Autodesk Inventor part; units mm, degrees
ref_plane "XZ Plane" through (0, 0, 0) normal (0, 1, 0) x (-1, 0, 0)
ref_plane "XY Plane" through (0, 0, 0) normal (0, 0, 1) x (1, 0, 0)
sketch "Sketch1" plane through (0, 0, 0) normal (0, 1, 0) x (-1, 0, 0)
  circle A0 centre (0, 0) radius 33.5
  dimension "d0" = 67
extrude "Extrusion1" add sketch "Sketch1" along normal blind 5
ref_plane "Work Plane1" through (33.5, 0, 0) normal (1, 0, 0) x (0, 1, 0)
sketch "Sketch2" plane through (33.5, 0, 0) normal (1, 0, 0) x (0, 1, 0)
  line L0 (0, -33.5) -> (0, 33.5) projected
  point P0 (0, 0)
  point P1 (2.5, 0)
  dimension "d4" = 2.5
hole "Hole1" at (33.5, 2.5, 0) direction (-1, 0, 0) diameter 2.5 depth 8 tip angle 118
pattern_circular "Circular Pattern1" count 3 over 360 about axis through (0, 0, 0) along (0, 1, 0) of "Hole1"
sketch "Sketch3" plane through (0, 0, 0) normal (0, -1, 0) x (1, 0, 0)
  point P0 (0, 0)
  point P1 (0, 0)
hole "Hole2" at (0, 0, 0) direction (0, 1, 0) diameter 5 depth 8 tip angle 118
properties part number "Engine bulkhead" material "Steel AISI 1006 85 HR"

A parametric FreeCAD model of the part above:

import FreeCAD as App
import Part
import Sketcher

V = App.Vector

doc = App.newDocument("Part")
body = doc.addObject("PartDesign::Body", "Body")

# Sketch on XZ plane
sketch1 = body.newObject("Sketcher::SketchObject", "Sketch")
sketch1.AttachmentSupport = (doc.getObject("XZ_Plane"), [""])
sketch1.MapMode = "FlatFace"
sketch1.addGeometry(Part.Circle(V(0, 0, 0), V(0, 0, 1), 34), False)
sketch1.addConstraint(Sketcher.Constraint("Coincident", 0, 3, -1, 1))
sketch1.addConstraint(Sketcher.Constraint("Diameter", 0, 67.0))
pad1 = body.newObject("PartDesign::Pad", "Pad")
pad1.Profile = sketch1
pad1.Length = 5
pad1.Reversed = True

# Sketch on YZ plane
sketch2 = body.newObject("Sketcher::SketchObject", "Sketch001")
sketch2.AttachmentSupport = (doc.getObject("YZ_Plane"), [""])
sketch2.MapMode = "FlatFace"
sketch2.AttachmentOffset = App.Placement(V(0, 0, 33.5), App.Rotation())
sketch2.addGeometry(Part.Circle(V(2.5, 0, 0), V(0, 0, 1), 1.2), False)
sketch2.addConstraint(Sketcher.Constraint("PointOnObject", 0, 3, -1))
sketch2.addConstraint(Sketcher.Constraint("Diameter", 0, 2.5))
sketch2.addConstraint(Sketcher.Constraint("DistanceX", -1, 1, 0, 3, 2.5))
doc.recompute()
hole = body.newObject("PartDesign::Hole", "Hole")
hole.Profile = sketch2
hole.ThreadType = "None"
hole.Diameter = 2.5
hole.DepthType = "Dimension"
hole.Depth = 8
hole.DrillPoint = "Angled"
hole.DrillPointAngle = 118
doc.recompute()

polarpattern = body.newObject("PartDesign::PolarPattern", "PolarPattern")
polarpattern.Originals = [hole]
polarpattern.Axis = (doc.getObject("Y_Axis"), [""])
polarpattern.Angle = 360
polarpattern.Occurrences = 3
body.Tip = polarpattern

# Sketch on XZ plane
sketch3 = body.newObject("Sketcher::SketchObject", "Sketch002")
sketch3.AttachmentSupport = (doc.getObject("XZ_Plane"), [""])
sketch3.MapMode = "FlatFace"
sketch3.addGeometry(Part.Circle(V(0, 0, 0), V(0, 0, 1), 2.5), False)
sketch3.addConstraint(Sketcher.Constraint("Coincident", 0, 3, -1, 1))
sketch3.addConstraint(Sketcher.Constraint("Diameter", 0, 5.0))
doc.recompute()
hole2 = body.newObject("PartDesign::Hole", "Hole001")
hole2.Profile = sketch3
hole2.ThreadType = "None"
hole2.Diameter = 5
hole2.DepthType = "Dimension"
hole2.Depth = 8
hole2.DrillPoint = "Angled"
hole2.DrillPointAngle = 118

doc.recompute()
